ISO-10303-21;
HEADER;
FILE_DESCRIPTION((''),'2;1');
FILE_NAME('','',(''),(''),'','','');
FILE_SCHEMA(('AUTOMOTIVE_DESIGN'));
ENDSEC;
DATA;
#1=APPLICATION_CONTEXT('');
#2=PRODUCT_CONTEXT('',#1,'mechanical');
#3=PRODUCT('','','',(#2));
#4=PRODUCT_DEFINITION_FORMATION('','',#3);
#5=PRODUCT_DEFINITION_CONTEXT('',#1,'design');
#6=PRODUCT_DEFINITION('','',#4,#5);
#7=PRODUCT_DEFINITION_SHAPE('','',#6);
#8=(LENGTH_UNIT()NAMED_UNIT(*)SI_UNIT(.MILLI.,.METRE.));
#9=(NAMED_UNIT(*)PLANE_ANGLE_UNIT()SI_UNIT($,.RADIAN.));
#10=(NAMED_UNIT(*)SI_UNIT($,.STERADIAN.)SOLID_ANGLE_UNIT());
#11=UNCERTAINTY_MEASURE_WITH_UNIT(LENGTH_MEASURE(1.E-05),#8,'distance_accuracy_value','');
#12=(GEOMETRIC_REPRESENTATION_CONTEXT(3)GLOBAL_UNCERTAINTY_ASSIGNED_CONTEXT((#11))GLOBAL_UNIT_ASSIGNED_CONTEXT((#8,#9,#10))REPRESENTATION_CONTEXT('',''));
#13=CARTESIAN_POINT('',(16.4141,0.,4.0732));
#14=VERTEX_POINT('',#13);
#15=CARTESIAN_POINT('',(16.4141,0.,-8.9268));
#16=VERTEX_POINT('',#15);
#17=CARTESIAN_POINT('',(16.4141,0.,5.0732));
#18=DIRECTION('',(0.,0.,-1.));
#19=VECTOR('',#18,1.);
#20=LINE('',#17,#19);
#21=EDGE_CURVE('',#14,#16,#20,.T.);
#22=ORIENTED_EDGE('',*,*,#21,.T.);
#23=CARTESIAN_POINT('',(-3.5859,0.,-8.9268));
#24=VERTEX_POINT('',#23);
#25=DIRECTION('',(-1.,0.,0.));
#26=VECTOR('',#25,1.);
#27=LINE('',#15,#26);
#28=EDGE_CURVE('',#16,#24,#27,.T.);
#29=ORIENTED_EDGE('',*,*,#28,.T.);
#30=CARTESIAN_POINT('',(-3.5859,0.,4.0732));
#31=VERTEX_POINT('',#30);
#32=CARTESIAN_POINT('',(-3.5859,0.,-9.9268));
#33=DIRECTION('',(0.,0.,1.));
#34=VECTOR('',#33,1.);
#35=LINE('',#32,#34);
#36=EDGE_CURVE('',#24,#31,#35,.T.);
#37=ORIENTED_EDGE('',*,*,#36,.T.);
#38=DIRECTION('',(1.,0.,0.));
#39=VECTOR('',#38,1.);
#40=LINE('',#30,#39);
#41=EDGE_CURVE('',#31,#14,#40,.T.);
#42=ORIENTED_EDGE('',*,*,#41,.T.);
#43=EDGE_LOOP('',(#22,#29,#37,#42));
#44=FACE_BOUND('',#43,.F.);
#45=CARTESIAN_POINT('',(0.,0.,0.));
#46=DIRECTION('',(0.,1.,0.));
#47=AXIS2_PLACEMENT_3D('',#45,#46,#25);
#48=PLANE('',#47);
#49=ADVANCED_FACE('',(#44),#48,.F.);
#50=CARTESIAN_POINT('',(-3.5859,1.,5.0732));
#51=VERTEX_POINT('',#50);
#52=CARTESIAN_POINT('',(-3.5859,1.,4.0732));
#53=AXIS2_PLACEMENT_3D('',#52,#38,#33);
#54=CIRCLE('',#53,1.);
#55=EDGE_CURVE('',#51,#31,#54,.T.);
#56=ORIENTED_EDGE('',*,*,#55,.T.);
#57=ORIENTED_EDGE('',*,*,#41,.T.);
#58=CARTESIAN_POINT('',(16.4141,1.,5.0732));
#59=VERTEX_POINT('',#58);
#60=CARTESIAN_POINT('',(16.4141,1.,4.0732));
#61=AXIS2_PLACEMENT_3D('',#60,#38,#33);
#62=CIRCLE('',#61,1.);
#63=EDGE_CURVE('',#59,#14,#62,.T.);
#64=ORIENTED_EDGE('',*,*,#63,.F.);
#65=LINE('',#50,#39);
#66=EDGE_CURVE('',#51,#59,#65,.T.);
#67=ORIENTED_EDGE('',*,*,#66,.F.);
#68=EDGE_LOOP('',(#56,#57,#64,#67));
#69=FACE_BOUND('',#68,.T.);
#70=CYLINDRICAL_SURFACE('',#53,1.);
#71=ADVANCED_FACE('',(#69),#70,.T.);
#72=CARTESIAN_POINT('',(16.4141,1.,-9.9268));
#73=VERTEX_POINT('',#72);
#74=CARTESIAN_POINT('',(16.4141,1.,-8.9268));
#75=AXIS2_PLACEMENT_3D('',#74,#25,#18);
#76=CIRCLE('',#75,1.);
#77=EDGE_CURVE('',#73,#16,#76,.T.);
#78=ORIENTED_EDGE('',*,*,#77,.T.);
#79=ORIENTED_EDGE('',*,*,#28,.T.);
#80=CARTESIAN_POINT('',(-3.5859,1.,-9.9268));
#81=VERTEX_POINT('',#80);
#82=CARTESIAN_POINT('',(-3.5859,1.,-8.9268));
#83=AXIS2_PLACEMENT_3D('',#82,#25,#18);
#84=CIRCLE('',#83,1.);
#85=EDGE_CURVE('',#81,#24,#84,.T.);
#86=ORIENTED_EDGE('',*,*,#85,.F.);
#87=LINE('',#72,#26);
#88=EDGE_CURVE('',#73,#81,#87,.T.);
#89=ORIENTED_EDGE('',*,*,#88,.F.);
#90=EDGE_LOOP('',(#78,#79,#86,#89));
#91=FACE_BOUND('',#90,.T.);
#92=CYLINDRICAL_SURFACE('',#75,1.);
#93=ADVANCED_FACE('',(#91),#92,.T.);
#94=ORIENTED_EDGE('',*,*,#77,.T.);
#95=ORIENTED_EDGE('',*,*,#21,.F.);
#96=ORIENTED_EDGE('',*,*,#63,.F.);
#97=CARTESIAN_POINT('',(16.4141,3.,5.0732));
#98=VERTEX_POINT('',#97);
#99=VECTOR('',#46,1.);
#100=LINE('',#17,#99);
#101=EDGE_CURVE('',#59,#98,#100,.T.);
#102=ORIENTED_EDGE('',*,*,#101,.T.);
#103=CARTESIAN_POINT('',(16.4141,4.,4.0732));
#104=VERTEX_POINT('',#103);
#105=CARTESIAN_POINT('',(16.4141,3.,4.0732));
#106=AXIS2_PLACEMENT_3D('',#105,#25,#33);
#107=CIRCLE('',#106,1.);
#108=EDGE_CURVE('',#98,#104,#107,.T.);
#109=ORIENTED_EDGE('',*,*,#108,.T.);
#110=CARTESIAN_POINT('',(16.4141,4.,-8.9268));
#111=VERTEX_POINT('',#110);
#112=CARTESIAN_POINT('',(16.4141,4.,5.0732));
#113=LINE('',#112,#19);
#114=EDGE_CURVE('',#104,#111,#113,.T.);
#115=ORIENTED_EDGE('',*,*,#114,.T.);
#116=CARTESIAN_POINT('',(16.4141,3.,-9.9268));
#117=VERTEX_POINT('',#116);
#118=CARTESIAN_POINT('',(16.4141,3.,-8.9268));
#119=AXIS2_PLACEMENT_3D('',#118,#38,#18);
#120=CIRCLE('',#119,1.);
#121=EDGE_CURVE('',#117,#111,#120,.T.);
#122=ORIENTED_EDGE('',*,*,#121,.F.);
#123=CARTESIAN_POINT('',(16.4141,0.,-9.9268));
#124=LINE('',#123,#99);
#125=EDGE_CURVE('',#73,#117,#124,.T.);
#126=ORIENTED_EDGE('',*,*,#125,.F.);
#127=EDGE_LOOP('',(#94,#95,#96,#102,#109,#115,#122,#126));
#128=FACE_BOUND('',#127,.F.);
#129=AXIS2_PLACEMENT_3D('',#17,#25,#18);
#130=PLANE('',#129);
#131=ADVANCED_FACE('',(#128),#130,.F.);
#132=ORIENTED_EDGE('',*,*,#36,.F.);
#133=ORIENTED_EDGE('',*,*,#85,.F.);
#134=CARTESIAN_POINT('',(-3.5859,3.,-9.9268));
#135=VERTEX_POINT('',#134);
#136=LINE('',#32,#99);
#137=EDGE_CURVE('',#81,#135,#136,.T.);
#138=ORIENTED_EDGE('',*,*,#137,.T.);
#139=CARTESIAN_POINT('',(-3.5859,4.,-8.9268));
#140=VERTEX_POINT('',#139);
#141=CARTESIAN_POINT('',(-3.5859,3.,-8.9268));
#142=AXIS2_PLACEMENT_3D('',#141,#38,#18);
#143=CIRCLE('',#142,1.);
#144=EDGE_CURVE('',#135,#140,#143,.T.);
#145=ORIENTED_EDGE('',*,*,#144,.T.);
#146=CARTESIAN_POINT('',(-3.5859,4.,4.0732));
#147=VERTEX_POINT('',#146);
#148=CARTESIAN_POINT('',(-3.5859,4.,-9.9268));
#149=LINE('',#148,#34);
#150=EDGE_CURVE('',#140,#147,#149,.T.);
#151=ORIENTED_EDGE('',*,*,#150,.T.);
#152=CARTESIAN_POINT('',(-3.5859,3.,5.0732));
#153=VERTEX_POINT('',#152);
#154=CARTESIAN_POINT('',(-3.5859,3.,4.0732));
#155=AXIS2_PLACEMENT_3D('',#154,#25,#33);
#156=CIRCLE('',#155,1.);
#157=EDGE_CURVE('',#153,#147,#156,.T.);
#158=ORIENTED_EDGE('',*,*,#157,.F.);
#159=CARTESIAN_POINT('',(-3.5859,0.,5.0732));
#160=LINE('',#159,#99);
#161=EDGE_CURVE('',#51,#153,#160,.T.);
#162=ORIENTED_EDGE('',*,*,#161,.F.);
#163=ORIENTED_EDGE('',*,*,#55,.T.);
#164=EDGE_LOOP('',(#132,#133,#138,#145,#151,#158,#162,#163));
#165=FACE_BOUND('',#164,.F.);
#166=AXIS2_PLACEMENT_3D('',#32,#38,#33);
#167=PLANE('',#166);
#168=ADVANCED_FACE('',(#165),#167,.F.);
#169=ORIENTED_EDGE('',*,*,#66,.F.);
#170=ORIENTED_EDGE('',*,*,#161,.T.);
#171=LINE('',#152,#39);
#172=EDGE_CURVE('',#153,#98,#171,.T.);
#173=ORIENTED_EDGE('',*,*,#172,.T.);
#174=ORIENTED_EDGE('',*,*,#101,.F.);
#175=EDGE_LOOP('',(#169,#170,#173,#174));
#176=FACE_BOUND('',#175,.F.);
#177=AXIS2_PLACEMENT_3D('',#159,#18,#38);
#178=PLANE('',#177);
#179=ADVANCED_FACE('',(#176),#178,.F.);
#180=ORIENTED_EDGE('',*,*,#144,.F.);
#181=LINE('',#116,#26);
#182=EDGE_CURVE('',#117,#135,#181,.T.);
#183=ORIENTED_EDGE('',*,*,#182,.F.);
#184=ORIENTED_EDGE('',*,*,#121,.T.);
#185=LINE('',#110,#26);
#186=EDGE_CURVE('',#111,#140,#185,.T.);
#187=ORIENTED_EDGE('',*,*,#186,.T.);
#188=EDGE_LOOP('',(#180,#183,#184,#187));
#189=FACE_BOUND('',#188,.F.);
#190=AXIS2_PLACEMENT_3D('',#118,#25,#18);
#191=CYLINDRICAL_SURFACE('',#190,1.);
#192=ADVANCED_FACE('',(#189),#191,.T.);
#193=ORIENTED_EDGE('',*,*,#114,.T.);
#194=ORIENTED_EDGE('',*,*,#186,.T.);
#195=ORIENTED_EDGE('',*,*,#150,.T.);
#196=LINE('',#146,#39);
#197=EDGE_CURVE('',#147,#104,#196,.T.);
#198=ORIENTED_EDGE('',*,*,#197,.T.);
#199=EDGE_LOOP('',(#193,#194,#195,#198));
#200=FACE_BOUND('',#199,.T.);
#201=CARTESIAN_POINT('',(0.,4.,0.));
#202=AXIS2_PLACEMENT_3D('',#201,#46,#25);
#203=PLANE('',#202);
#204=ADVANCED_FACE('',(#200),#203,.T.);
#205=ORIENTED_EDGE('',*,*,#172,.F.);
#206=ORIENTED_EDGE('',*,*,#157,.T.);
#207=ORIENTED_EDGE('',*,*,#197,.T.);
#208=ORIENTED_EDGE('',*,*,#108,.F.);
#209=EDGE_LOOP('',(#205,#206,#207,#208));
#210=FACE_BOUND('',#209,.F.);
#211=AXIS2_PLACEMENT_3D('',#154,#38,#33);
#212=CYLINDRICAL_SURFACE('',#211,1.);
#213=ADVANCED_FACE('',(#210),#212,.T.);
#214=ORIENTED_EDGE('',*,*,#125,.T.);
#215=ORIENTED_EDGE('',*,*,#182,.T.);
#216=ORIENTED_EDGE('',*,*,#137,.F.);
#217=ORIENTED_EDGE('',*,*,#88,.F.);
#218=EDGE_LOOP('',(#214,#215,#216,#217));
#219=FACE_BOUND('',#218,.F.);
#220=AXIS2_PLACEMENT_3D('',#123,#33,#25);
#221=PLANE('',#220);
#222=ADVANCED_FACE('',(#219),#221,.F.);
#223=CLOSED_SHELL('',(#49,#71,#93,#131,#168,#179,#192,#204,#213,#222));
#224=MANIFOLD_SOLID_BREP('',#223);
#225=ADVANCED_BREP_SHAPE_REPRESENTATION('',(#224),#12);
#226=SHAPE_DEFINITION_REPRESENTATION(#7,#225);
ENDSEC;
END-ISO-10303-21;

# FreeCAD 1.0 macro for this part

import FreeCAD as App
import Part
import Sketcher


def edges_at(feature, points):
    """Names of the edges that pass closest to the given points."""
    edges = feature.Shape.Edges
    near = lambda p: min(range(len(edges)), key=lambda i: edges[i].distToShape(Part.Vertex(*p))[0])
    return sorted({f"Edge{near(p) + 1}" for p in points})


def add_polygon(sketch, points):
    """Adds a closed chain of lines whose ends are joined by coincident constraints."""
    first, n = sketch.GeometryCount, len(points)
    for a, b in zip(points, points[1:] + points[:1]):
        sketch.addGeometry(Part.LineSegment(App.Vector(*a, 0), App.Vector(*b, 0)), False)
    for i in range(n):
        sketch.addConstraint(Sketcher.Constraint("Coincident", first + i, 2, first + (i + 1) % n, 1))

doc = App.newDocument("Part")
body = doc.addObject("PartDesign::Body", "Body")

# Sketch on XZ plane
sketch1 = doc.addObject("Sketcher::SketchObject", "Sketch")
body.addObject(sketch1)
sketch1.AttachmentSupport = (doc.XZ_Plane, [""])
sketch1.MapMode = "FlatFace"
add_polygon(sketch1, [(-4, -10), (-4, 5), (16, 5), (16, -10)])  # lines 0-3
sketch1.addConstraint([
    Sketcher.Constraint("Vertical", 0),
    Sketcher.Constraint("Horizontal", 1),
    Sketcher.Constraint("Vertical", 2),
    Sketcher.Constraint("Horizontal", 3),
    Sketcher.Constraint("DistanceX", 1, 1, 1, 2, 20.0),
    Sketcher.Constraint("DistanceY", 0, 1, 0, 2, 15.0),
    Sketcher.Constraint("DistanceX", 0, 2, -1, 1, 3.586),
    Sketcher.Constraint("DistanceY", -1, 1, 0, 2, 5.0732),
])
pad1 = doc.addObject("PartDesign::Pad", "Pad")
body.addObject(pad1)
pad1.Profile = sketch1
pad1.Length = 4
pad1.Reversed = True
doc.recompute()

fillet = doc.addObject("PartDesign::Fillet", "Fillet")
body.addObject(fillet)
fillet.Base = (pad1, edges_at(pad1, [
    (6.414, 4, -9.927),
    (6.414, 4, 5.073),
    (6.414, 0, 5.073),
    (6.414, 0, -9.927),
]))
fillet.Radius = 1

doc.recompute()
